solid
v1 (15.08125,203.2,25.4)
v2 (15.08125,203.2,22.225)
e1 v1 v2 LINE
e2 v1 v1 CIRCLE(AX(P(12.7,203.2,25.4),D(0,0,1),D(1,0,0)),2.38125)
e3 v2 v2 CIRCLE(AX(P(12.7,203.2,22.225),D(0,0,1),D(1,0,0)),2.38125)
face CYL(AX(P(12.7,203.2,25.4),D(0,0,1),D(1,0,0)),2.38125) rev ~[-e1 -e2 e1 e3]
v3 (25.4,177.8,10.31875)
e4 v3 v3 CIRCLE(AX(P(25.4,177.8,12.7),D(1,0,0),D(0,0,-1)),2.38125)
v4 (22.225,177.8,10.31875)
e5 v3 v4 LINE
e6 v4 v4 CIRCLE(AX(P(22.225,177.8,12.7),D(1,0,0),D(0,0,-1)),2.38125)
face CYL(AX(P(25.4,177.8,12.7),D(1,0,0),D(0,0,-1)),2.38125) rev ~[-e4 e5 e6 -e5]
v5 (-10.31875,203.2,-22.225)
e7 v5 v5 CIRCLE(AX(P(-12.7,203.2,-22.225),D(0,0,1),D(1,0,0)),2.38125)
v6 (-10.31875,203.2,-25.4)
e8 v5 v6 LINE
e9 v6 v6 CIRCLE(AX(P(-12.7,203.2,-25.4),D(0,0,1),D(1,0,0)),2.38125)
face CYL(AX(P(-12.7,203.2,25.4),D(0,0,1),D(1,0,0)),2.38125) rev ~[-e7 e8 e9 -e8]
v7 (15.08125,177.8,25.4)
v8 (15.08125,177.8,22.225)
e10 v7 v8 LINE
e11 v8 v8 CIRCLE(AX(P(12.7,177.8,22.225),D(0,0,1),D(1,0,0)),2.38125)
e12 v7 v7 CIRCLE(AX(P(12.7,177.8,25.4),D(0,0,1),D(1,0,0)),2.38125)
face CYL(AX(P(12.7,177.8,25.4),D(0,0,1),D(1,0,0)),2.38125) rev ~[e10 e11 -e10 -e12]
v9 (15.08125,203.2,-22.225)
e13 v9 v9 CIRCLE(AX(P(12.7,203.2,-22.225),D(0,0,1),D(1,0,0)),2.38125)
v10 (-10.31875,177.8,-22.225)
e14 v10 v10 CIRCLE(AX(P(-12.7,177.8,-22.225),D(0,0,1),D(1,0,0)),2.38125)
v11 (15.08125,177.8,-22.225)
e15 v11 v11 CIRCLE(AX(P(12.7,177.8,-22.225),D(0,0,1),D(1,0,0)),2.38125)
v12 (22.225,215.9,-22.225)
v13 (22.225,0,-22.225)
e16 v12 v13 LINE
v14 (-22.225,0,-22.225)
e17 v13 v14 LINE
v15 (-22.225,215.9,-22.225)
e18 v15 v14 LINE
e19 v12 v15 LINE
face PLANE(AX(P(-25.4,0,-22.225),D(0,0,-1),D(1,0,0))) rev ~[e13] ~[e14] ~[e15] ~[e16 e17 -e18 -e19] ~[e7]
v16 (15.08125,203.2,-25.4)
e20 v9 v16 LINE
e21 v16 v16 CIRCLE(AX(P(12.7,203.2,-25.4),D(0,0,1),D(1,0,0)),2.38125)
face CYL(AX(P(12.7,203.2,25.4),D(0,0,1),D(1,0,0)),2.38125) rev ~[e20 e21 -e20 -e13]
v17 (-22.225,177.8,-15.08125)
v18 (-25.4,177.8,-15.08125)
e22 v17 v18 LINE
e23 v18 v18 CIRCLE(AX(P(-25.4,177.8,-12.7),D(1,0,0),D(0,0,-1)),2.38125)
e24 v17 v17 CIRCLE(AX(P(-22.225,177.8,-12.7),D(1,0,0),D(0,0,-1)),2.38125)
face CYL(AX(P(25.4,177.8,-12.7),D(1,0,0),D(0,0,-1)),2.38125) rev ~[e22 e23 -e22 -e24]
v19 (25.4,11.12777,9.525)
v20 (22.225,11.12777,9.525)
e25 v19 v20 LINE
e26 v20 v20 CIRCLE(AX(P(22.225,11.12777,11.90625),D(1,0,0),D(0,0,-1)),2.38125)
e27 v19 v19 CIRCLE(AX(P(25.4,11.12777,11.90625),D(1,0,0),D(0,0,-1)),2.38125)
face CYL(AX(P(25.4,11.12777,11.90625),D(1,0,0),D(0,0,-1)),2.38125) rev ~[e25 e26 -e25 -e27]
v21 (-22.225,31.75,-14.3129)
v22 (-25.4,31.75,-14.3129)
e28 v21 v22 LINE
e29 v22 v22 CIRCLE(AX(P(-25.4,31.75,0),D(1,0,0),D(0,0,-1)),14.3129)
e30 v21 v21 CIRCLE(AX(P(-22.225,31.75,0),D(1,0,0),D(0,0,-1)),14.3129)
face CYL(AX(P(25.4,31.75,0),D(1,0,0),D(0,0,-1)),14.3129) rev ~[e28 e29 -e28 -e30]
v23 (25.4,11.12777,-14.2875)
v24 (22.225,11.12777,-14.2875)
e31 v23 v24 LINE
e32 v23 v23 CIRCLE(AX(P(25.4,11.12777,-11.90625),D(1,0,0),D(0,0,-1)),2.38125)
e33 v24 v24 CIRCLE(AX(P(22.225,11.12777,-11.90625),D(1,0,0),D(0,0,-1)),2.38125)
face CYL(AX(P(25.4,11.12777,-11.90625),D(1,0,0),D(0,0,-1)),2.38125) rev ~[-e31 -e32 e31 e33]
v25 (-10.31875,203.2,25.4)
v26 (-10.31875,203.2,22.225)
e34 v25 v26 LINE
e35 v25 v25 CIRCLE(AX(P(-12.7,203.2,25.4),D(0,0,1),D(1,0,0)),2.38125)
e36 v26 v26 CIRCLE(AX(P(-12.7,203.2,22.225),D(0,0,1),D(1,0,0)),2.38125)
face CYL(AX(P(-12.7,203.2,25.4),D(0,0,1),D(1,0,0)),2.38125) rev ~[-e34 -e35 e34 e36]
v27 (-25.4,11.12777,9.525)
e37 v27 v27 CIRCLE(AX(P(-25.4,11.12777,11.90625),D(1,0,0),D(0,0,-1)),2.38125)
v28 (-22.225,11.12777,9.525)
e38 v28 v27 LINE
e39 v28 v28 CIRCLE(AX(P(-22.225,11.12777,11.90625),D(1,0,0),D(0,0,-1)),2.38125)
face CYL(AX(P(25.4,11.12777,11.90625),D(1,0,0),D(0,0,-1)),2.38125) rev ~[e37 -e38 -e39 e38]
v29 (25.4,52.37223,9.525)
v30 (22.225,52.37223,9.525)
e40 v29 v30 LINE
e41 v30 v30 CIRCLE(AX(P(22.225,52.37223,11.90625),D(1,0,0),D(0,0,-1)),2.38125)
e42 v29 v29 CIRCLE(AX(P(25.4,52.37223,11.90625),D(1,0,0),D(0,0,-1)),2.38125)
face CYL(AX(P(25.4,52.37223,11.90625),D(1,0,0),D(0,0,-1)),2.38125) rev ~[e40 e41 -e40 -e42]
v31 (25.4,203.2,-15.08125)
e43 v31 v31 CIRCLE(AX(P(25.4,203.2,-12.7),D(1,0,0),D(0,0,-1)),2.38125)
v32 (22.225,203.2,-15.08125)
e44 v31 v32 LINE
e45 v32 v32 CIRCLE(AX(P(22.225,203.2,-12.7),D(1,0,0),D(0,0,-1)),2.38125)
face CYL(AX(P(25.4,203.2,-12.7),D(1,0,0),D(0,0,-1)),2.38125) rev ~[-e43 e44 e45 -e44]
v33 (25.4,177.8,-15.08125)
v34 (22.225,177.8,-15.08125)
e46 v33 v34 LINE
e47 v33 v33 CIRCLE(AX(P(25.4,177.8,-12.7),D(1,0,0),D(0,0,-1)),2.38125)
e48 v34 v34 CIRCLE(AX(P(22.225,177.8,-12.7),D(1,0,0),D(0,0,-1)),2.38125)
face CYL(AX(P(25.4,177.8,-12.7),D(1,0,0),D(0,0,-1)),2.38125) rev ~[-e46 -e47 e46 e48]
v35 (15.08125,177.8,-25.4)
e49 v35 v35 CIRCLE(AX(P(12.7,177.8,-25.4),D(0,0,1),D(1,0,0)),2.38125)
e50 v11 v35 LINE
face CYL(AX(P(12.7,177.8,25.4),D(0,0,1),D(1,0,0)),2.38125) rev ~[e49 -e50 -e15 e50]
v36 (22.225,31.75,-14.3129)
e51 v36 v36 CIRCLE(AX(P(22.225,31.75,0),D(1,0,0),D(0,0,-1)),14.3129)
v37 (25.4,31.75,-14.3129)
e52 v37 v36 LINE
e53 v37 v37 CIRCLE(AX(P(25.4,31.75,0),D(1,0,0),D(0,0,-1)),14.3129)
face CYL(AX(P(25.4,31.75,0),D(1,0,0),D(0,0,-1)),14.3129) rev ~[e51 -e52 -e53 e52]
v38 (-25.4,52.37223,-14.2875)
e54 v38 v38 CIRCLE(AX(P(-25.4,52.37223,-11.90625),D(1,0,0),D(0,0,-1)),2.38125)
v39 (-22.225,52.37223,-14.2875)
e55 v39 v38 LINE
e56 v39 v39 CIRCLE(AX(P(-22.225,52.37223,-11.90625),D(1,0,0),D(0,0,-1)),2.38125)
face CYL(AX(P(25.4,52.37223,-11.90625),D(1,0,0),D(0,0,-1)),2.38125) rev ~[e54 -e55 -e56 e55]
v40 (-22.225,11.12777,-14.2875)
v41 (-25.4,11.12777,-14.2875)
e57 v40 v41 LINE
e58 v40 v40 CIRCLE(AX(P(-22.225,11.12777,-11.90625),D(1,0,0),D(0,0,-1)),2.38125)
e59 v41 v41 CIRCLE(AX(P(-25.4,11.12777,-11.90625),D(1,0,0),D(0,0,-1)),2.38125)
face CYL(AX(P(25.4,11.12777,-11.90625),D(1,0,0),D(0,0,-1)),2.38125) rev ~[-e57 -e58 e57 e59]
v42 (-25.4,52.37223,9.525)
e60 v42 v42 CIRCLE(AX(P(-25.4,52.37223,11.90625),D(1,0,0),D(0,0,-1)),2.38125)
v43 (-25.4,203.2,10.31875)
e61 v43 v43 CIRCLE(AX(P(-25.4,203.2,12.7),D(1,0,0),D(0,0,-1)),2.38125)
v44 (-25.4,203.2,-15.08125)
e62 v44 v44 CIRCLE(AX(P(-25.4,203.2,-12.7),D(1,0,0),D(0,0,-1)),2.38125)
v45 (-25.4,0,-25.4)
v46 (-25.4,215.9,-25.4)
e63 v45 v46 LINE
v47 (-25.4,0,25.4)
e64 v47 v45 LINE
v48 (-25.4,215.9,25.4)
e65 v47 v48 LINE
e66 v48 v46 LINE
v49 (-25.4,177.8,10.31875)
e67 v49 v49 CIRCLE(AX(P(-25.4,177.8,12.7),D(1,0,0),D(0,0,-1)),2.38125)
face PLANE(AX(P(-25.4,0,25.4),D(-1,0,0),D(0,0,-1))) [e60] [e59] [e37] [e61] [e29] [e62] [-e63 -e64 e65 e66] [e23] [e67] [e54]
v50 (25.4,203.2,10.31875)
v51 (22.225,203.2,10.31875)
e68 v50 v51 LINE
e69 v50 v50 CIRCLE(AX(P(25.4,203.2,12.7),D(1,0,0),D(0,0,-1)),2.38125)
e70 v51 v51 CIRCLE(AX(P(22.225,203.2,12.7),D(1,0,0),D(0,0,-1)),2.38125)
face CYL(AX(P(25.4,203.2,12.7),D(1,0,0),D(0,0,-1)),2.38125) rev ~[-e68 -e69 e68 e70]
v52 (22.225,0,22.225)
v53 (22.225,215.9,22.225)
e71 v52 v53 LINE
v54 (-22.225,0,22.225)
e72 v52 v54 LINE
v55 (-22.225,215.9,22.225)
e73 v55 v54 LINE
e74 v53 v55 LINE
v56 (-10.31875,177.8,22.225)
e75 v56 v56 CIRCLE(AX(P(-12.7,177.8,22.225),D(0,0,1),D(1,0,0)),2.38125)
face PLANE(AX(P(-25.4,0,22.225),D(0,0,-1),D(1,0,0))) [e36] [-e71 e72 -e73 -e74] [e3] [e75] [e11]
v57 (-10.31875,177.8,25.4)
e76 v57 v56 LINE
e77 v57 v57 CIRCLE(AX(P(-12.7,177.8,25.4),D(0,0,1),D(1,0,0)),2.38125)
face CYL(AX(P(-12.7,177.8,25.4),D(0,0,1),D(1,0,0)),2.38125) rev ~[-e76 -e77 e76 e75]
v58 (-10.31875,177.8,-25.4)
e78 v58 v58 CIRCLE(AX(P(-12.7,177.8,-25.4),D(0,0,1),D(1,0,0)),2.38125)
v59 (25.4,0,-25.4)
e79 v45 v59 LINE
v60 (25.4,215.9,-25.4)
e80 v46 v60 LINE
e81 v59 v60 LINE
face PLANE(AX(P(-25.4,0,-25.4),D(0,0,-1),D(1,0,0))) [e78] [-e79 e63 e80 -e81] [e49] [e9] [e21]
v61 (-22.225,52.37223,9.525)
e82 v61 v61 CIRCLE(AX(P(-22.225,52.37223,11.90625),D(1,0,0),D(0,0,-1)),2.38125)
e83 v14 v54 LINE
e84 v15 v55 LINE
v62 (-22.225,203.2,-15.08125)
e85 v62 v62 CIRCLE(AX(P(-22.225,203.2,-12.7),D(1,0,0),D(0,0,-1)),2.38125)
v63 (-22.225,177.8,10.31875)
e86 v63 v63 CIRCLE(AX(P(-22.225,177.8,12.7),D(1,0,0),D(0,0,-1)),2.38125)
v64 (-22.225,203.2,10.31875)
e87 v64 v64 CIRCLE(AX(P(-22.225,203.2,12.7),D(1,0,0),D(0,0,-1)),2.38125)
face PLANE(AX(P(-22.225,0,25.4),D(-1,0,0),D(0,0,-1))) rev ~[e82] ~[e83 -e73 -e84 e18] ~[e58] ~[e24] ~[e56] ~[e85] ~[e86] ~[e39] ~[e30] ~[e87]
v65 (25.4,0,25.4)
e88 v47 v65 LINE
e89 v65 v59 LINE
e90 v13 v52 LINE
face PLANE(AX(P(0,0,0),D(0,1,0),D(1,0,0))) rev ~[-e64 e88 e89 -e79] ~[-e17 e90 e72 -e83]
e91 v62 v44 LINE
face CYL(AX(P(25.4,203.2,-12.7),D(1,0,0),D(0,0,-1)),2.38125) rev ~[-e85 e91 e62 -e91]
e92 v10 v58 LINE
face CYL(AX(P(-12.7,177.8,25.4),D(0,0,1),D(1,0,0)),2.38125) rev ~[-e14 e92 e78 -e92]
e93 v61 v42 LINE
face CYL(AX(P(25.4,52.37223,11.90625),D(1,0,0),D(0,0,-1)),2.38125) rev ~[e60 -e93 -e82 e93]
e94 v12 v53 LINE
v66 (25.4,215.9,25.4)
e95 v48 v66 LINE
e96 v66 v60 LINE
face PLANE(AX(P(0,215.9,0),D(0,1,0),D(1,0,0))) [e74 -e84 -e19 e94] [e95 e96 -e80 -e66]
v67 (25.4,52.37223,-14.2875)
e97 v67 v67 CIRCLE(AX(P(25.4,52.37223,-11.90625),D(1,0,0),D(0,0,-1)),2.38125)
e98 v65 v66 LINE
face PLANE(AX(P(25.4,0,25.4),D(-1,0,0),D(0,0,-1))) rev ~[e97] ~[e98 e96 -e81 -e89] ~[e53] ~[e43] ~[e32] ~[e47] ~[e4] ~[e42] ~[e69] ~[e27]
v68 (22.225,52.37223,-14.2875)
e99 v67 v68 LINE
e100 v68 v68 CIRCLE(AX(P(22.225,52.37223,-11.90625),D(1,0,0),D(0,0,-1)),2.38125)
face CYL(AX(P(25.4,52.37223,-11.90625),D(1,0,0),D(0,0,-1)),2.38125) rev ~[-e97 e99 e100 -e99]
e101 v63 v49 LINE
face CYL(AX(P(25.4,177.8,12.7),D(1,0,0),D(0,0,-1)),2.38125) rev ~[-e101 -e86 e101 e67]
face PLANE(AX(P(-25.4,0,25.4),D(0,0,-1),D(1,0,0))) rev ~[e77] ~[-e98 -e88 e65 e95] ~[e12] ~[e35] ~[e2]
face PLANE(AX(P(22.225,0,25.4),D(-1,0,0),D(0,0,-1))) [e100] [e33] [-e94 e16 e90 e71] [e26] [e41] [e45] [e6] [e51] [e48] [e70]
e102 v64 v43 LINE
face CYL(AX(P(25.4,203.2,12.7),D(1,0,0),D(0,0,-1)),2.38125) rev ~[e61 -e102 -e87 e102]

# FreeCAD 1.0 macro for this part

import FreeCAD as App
import Part
import Sketcher
Q = App.Units.Quantity


def faces_at(feature, points):
    """Names of the faces that lie closest to the given points."""
    faces = feature.Shape.Faces
    near = lambda p: min(range(len(faces)), key=lambda i: faces[i].distToShape(Part.Vertex(*p))[0])
    return sorted({f"Face{near(p) + 1}" for p in points})

doc = App.newDocument("Part")
body = doc.addObject("PartDesign::Body", "Body")

sketch1 = body.newObject("Sketcher::SketchObject", "Sketch")
sketch1.AttachmentSupport = (doc.getObject("XZ_Plane"), [""])
sketch1.MapMode = "FlatFace"
sketch1.addGeometry(Part.LineSegment(App.Vector(-25.4, -25.4, 0), App.Vector(-25.4, 25.4, 0)), False)
sketch1.addGeometry(Part.LineSegment(App.Vector(-25.4, 25.4, 0), App.Vector(25.4, 25.4, 0)), False)
sketch1.addGeometry(Part.LineSegment(App.Vector(25.4, 25.4, 0), App.Vector(25.4, -25.4, 0)), False)
sketch1.addGeometry(Part.LineSegment(App.Vector(25.4, -25.4, 0), App.Vector(-25.4, -25.4, 0)), False)
sketch1.addConstraint(Sketcher.Constraint("Coincident", 0, 2, 1, 1))
sketch1.addConstraint(Sketcher.Constraint("Coincident", 1, 2, 2, 1))
sketch1.addConstraint(Sketcher.Constraint("Coincident", 2, 2, 3, 1))
sketch1.addConstraint(Sketcher.Constraint("Coincident", 3, 2, 0, 1))
sketch1.addConstraint(Sketcher.Constraint("Vertical", 0))
sketch1.addConstraint(Sketcher.Constraint("Horizontal", 1))
sketch1.addConstraint(Sketcher.Constraint("Vertical", 2))
sketch1.addConstraint(Sketcher.Constraint("Horizontal", 3))
sketch1.addConstraint(Sketcher.Constraint("Symmetric", 0, 2, 2, 2, -1, 1))
sketch1.addConstraint(Sketcher.Constraint("Equal", 3, 0))
sketch1.addConstraint(Sketcher.Constraint("DistanceX", 1, 1, 1, 2, Q("2 in")))
pad1 = body.newObject("PartDesign::Pad", "Pad")
pad1.Profile = sketch1
pad1.Length = Q("8.5 in")
pad1.Reversed = True
doc.recompute()

thickness = body.newObject("PartDesign::Thickness", "Thickness")
thickness.Base = (pad1, faces_at(pad1, [(0, 215.9, 0), (0, 0, 0)]))
thickness.Value = Q("0.125 in")
thickness.Reversed = True
thickness.Join = "Intersection"

sketch2 = body.newObject("Sketcher::SketchObject", "Sketch001")
sketch2.AttachmentSupport = (doc.getObject("YZ_Plane"), [""])
sketch2.MapMode = "FlatFace"
sketch2.AttachmentOffset = App.Placement(App.Vector(0, 0, 1 * 25.4), App.Rotation())
sketch2.addGeometry(Part.Circle(App.Vector(31.75, 0, 0), App.Vector(0, 0, 1), 14.3129), False)
sketch2.addConstraint(Sketcher.Constraint("PointOnObject", 0, 3, -1))
sketch2.addConstraint(Sketcher.Constraint("Diameter", 0, Q("1.127 in")))
sketch2.addConstraint(Sketcher.Constraint("DistanceX", -1, 1, 0, 3, Q("1.25 in")))
pocket1 = body.newObject("PartDesign::Pocket", "Pocket")
pocket1.Profile = sketch2
pocket1.Type = "ThroughAll"

sketch3 = body.newObject("Sketcher::SketchObject", "Sketch002")
sketch3.AttachmentSupport = (doc.getObject("YZ_Plane"), [""])
sketch3.MapMode = "FlatFace"
sketch3.AttachmentOffset = App.Placement(App.Vector(0, 0, 1 * 25.4), App.Rotation())
sketch3.addGeometry(Part.Circle(App.Vector(52.37223, 11.90625, 0), App.Vector(0, 0, 1), 2.38125), False)
sketch3.addGeometry(Part.Circle(App.Vector(52.37223, -11.90625, 0), App.Vector(0, 0, 1), 2.38125), False)
sketch3.addGeometry(Part.Circle(App.Vector(11.12777, 11.90625, 0), App.Vector(0, 0, 1), 2.38125), False)
sketch3.addGeometry(Part.Circle(App.Vector(11.12777, -11.90625, 0), App.Vector(0, 0, 1), 2.38125), False)
sketch3.addConstraint(Sketcher.Constraint("Equal", 0, 1))
sketch3.addConstraint(Sketcher.Constraint("Equal", 1, 2))
sketch3.addConstraint(Sketcher.Constraint("Equal", 2, 3))
sketch3.addConstraint(Sketcher.Constraint("Symmetric", 0, 3, 1, 3, -1))
sketch3.addConstraint(Sketcher.Constraint("Symmetric", 2, 3, 3, 3, -1))
sketch3.addConstraint(Sketcher.Constraint("Horizontal", 0, 3, 2, 3))
sketch3.addConstraint(Sketcher.Constraint("Diameter", 0, Q("0.1875 in")))
sketch3.addConstraint(Sketcher.Constraint("DistanceY", -1, 1, 0, 3, Q("0.46875 in")))
sketch3.addConstraint(Sketcher.Constraint("DistanceX", -1, 1, 0, 3, Q("52.37223 mm")))
sketch3.addConstraint(Sketcher.Constraint("DistanceX", -1, 1, 2, 3, Q("11.12777 mm")))
pocket2 = body.newObject("PartDesign::Pocket", "Pocket001")
pocket2.Profile = sketch3
pocket2.Type = "ThroughAll"

sketch4 = body.newObject("Sketcher::SketchObject", "Sketch003")
sketch4.AttachmentSupport = (doc.getObject("YZ_Plane"), [""])
sketch4.MapMode = "FlatFace"
sketch4.AttachmentOffset = App.Placement(App.Vector(0, 0, 1 * 25.4), App.Rotation())
sketch4.addGeometry(Part.Circle(App.Vector(203.2, 12.7, 0), App.Vector(0, 0, 1), 2.38125), False)
sketch4.addGeometry(Part.Circle(App.Vector(203.2, -12.7, 0), App.Vector(0, 0, 1), 2.38125), False)
sketch4.addGeometry(Part.Circle(App.Vector(177.8, -12.7, 0), App.Vector(0, 0, 1), 2.38125), False)
sketch4.addGeometry(Part.Circle(App.Vector(177.8, 12.7, 0), App.Vector(0, 0, 1), 2.38125), False)
sketch4.addConstraint(Sketcher.Constraint("Equal", 0, 1))
sketch4.addConstraint(Sketcher.Constraint("Equal", 1, 2))
sketch4.addConstraint(Sketcher.Constraint("Equal", 2, 3))
sketch4.addConstraint(Sketcher.Constraint("Symmetric", 0, 3, 1, 3, -1))
sketch4.addConstraint(Sketcher.Constraint("Symmetric", 2, 3, 3, 3, -1))
sketch4.addConstraint(Sketcher.Constraint("Horizontal", 1, 3, 2, 3))
sketch4.addConstraint(Sketcher.Constraint("Diameter", 0, Q("0.1875 in")))
sketch4.addConstraint(Sketcher.Constraint("DistanceX", -1, 1, 0, 3, Q("8 in")))
sketch4.addConstraint(Sketcher.Constraint("DistanceX", -1, 1, 2, 3, Q("7 in")))
sketch4.addConstraint(Sketcher.Constraint("DistanceY", 1, 3, 0, 3, Q("1 in")))
pocket3 = body.newObject("PartDesign::Pocket", "Pocket002")
pocket3.Profile = sketch4
pocket3.Type = "ThroughAll"

sketch5 = body.newObject("Sketcher::SketchObject", "Sketch004")
sketch5.AttachmentSupport = (doc.getObject("XY_Plane"), [""])
sketch5.MapMode = "FlatFace"
sketch5.AttachmentOffset = App.Placement(App.Vector(0, 0, 1 * 25.4), App.Rotation())
sketch5.addGeometry(Part.Circle(App.Vector(-12.7, 203.2, 0), App.Vector(0, 0, 1), 2.38125), False)
sketch5.addGeometry(Part.Circle(App.Vector(12.7, 203.2, 0), App.Vector(0, 0, 1), 2.38125), False)
sketch5.addGeometry(Part.Circle(App.Vector(12.7, 177.8, 0), App.Vector(0, 0, 1), 2.38125), False)
sketch5.addGeometry(Part.Circle(App.Vector(-12.7, 177.8, 0), App.Vector(0, 0, 1), 2.38125), False)
sketch5.addConstraint(Sketcher.Constraint("Equal", 0, 1))
sketch5.addConstraint(Sketcher.Constraint("Equal", 1, 2))
sketch5.addConstraint(Sketcher.Constraint("Equal", 2, 3))
sketch5.addConstraint(Sketcher.Constraint("Symmetric", 0, 3, 1, 3, -2))
sketch5.addConstraint(Sketcher.Constraint("Symmetric", 2, 3, 3, 3, -2))
sketch5.addConstraint(Sketcher.Constraint("Vertical", 1, 3, 2, 3))
sketch5.addConstraint(Sketcher.Constraint("Diameter", 0, Q("0.1875 in")))
sketch5.addConstraint(Sketcher.Constraint("DistanceY", -1, 1, 0, 3, Q("8 in")))
sketch5.addConstraint(Sketcher.Constraint("DistanceY", -1, 1, 2, 3, Q("7 in")))
sketch5.addConstraint(Sketcher.Constraint("DistanceX", 0, 3, 1, 3, Q("1 in")))
pocket4 = body.newObject("PartDesign::Pocket", "Pocket003")
pocket4.Profile = sketch5
pocket4.Type = "ThroughAll"

doc.recompute()
